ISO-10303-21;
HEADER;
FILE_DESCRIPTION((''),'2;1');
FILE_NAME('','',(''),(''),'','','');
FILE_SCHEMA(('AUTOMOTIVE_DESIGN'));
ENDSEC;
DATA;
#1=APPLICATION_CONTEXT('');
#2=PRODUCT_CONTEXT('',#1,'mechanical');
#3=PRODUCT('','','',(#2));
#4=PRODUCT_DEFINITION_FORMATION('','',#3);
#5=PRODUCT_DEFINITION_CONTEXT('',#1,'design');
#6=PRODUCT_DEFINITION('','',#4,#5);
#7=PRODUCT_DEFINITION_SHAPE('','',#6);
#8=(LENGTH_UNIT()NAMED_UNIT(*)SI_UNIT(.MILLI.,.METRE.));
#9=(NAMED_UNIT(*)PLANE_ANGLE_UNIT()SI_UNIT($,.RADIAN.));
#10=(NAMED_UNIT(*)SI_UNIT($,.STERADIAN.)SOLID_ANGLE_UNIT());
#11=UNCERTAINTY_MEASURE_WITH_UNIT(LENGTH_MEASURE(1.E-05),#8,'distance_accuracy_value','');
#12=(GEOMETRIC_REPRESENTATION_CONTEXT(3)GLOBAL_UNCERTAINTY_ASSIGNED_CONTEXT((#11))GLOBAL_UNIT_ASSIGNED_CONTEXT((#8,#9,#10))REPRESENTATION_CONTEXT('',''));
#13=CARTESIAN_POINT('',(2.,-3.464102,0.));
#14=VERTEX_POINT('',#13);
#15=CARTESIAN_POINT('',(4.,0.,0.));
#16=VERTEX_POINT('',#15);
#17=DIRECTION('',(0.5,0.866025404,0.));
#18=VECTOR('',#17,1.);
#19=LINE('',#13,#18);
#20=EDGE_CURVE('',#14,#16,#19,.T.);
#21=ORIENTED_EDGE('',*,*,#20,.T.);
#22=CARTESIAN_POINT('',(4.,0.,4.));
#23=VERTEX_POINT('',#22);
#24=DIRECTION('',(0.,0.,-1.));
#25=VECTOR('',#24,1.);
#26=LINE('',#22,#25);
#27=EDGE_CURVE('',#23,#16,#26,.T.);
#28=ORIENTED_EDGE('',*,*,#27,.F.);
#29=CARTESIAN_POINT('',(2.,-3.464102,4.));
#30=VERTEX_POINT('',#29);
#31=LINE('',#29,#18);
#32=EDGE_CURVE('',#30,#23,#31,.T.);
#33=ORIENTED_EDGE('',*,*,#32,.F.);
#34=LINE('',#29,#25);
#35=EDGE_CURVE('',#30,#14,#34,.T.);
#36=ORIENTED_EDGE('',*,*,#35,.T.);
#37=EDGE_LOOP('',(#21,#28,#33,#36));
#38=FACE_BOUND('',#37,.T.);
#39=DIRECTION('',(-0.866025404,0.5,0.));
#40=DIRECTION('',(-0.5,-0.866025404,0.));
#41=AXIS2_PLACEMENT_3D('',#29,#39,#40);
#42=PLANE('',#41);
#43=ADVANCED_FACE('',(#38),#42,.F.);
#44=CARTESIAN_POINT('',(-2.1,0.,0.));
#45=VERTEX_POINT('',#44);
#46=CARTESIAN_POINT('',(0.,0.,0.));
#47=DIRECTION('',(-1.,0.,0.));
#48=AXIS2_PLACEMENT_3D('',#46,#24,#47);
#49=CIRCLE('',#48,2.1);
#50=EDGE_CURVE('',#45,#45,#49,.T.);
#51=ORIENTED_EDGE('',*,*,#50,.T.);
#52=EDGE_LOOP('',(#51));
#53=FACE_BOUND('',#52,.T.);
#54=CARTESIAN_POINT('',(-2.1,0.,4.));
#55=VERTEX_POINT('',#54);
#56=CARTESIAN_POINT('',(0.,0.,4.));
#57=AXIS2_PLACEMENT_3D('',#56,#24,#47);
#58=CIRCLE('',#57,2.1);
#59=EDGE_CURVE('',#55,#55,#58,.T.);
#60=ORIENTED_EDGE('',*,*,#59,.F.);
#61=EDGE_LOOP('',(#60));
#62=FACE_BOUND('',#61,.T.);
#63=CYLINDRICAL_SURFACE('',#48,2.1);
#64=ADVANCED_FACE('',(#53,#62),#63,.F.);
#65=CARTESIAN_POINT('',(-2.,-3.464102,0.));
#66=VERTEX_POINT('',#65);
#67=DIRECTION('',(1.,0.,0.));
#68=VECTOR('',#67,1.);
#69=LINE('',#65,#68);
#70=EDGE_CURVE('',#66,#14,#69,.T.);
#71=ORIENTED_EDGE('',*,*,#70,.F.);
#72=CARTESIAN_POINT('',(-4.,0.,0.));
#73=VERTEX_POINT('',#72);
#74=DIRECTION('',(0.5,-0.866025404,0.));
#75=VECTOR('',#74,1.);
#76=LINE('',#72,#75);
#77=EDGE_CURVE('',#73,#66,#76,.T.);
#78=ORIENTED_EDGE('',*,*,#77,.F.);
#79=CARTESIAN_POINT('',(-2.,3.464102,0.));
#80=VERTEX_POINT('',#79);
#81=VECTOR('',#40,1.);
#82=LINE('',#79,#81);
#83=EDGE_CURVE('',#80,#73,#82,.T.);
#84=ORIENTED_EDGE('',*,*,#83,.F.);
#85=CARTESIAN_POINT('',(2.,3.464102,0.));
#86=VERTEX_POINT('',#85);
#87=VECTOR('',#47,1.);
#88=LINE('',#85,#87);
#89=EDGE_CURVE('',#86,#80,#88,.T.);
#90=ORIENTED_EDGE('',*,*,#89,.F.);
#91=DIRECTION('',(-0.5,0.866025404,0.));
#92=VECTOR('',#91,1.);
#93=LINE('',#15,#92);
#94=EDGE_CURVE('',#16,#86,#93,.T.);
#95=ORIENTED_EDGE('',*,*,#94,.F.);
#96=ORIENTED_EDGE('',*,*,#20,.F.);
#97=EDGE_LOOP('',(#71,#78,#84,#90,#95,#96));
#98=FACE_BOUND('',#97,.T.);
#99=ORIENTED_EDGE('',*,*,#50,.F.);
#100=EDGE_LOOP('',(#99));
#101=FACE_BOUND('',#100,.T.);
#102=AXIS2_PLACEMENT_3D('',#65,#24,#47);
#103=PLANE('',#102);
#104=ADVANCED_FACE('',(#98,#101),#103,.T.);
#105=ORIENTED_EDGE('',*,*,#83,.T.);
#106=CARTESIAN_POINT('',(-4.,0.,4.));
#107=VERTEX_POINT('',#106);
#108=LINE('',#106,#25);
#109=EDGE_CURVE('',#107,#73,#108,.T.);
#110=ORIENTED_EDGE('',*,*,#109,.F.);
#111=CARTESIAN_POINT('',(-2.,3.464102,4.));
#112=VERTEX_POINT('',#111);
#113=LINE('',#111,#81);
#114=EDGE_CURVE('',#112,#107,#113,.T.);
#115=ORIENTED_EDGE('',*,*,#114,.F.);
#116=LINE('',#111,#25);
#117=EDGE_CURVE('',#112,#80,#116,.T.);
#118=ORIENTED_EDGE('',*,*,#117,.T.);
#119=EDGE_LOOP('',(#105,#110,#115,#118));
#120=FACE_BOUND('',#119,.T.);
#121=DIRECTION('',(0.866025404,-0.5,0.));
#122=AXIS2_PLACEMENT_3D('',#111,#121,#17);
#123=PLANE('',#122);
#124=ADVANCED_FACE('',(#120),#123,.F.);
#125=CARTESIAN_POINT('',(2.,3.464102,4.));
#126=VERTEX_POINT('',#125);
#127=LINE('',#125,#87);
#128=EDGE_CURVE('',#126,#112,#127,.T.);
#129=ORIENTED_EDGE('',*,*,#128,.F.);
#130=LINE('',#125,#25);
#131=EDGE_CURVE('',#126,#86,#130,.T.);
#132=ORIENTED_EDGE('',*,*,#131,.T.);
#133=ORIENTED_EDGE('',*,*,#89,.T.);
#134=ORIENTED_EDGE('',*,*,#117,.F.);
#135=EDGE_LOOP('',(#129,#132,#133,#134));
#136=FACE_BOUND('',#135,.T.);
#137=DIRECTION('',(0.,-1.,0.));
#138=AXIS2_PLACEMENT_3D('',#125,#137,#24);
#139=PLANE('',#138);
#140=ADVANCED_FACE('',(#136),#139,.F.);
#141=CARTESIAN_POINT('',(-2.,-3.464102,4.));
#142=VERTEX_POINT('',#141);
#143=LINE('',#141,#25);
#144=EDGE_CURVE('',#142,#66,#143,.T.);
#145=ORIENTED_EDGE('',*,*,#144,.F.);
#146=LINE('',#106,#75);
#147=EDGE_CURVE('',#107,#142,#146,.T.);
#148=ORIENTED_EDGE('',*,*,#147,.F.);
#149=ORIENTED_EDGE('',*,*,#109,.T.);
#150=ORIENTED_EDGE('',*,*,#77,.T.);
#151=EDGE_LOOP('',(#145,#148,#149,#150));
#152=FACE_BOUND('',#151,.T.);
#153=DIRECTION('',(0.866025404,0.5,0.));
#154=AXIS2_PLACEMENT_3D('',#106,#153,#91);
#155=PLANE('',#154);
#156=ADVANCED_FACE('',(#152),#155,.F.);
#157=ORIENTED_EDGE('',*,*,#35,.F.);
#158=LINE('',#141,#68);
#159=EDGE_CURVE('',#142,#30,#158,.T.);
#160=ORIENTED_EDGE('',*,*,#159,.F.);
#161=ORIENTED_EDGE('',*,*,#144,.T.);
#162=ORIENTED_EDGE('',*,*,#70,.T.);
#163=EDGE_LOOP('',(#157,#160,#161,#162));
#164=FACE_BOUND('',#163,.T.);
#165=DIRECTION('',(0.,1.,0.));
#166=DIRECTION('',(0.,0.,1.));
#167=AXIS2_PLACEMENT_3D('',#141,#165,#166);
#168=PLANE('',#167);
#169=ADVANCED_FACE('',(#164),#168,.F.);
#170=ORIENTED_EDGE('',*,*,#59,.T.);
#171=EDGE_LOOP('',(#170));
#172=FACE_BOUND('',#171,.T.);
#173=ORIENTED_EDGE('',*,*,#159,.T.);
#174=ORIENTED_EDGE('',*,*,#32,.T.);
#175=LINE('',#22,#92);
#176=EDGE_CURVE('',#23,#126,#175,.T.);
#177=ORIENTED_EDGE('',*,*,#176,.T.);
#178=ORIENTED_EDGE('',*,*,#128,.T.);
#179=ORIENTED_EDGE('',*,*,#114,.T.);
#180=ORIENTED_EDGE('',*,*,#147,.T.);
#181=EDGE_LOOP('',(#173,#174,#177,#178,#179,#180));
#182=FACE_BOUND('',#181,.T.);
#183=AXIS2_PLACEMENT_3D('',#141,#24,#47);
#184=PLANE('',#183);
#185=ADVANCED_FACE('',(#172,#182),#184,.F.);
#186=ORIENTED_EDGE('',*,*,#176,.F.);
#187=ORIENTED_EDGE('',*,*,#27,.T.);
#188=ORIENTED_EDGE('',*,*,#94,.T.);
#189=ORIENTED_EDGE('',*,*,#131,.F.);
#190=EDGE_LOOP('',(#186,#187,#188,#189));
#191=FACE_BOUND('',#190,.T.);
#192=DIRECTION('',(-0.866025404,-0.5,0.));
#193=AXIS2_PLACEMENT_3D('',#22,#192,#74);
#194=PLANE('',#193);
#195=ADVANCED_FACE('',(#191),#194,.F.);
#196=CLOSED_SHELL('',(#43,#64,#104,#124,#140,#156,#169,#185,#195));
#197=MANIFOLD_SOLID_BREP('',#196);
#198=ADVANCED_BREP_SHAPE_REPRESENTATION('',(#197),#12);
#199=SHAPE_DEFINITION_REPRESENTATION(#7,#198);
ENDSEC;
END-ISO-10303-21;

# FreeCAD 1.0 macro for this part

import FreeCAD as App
import Part
import Sketcher
Q = App.Units.Quantity


def add_polygon(sketch, points):
    """Adds a closed chain of lines whose ends are joined by coincident constraints."""
    first, n = sketch.GeometryCount, len(points)
    for a, b in zip(points, points[1:] + points[:1]):
        sketch.addGeometry(Part.LineSegment(App.Vector(*a, 0), App.Vector(*b, 0)), False)
    for i in range(n):
        sketch.addConstraint(Sketcher.Constraint("Coincident", first + i, 2, first + (i + 1) % n, 1))

doc = App.newDocument("Part")
body = doc.addObject("PartDesign::Body", "Body")

# Sketch on XY plane
sketch1 = body.newObject("Sketcher::SketchObject", "Sketch")
sketch1.AttachmentSupport = (doc.getObject("XY_Plane"), [""])
sketch1.MapMode = "FlatFace"
add_polygon(sketch1, [(2, -3.5), (4, 0), (2, 3.5), (-2, 3.5), (-4, 0), (-2, -3.5)])  # lines 0-5
sketch1.addConstraint([
    Sketcher.Constraint("Horizontal", 2),
    Sketcher.Constraint("Horizontal", 5),
    Sketcher.Constraint("Symmetric", 0, 2, 3, 2, -1, 1),
    Sketcher.Constraint("Symmetric", 1, 2, 4, 2, -1, 1),
    Sketcher.Constraint("PointOnObject", 0, 2, -1),
    Sketcher.Constraint("Parallel", 0, 3),
    Sketcher.Constraint("Vertical", 2, 2, 4, 2),
    Sketcher.Constraint("DistanceX", 2, 2, 2, 1, 4.0),
    Sketcher.Constraint("Angle", 0, Q("60 deg")),
    Sketcher.Constraint("Distance", 0, 4.0),
])
pad1 = body.newObject("PartDesign::Pad", "Pad")
pad1.Profile = sketch1
pad1.Length = 4

# Sketch on XY plane
sketch2 = body.newObject("Sketcher::SketchObject", "Sketch001")
sketch2.AttachmentSupport = (doc.getObject("XY_Plane"), [""])
sketch2.MapMode = "FlatFace"
sketch2.addGeometry(Part.Circle(App.Vector(0, 0, 0), App.Vector(0, 0, 1), 2.1), False)
sketch2.addConstraint([
    Sketcher.Constraint("Coincident", 0, 3, -1, 1),
    Sketcher.Constraint("Diameter", 0, 4.2),
])
doc.recompute()
hole = body.newObject("PartDesign::Hole", "Hole")
hole.Profile = sketch2
hole.ThreadType = "None"
hole.Diameter = 4.2
hole.DepthType = "ThroughAll"
hole.Reversed = True

doc.recompute()
